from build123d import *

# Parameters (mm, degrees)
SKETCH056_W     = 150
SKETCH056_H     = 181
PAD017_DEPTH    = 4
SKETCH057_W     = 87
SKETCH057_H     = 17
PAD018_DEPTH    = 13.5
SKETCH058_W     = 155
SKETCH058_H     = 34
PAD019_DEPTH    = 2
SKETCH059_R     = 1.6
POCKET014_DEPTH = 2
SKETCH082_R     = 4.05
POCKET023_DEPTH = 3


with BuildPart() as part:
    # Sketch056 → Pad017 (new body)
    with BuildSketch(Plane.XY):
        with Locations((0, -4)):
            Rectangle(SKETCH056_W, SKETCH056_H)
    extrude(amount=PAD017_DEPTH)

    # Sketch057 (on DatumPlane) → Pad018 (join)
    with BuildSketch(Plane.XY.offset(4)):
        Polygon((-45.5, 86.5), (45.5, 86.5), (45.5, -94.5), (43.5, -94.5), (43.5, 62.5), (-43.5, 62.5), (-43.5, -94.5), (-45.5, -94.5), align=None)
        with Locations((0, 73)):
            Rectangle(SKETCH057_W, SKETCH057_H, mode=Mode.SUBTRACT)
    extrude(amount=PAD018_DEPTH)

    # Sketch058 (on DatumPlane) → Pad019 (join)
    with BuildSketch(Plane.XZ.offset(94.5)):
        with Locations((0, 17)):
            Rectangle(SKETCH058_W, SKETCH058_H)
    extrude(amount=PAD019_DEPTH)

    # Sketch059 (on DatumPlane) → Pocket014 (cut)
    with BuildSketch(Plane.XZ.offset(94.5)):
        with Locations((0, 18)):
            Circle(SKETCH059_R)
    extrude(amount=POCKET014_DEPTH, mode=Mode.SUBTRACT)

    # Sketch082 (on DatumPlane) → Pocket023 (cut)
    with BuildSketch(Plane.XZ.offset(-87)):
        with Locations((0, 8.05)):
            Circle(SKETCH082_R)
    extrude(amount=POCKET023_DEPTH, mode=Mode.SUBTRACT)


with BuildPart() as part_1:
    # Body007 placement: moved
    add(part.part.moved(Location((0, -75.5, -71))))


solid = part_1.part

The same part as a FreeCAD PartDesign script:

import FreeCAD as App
import Part
import Sketcher

V = App.Vector


def add_polygon(sketch, points):
    """Adds a closed chain of lines whose ends are joined by coincident constraints."""
    first, n = sketch.GeometryCount, len(points)
    for a, b in zip(points, points[1:] + points[:1]):
        sketch.addGeometry(Part.LineSegment(App.Vector(*a, 0), App.Vector(*b, 0)), False)
    for i in range(n):
        sketch.addConstraint(Sketcher.Constraint("Coincident", first + i, 2, first + (i + 1) % n, 1))

doc = App.newDocument("Part")
body = doc.addObject("PartDesign::Body", "Body")

# Sketch on XY plane
sketch1 = doc.addObject("Sketcher::SketchObject", "Sketch")
body.addObject(sketch1)
sketch1.AttachmentSupport = (doc.XY_Plane, [""])
sketch1.MapMode = "FlatFace"
add_polygon(sketch1, [(-75, 86), (-75, -94), (75, -94), (75, 86)])  # lines 0-3
sketch1.addConstraint(Sketcher.Constraint("Vertical", 0))
sketch1.addConstraint(Sketcher.Constraint("Horizontal", 1))
sketch1.addConstraint(Sketcher.Constraint("Vertical", 2))
sketch1.addConstraint(Sketcher.Constraint("Horizontal", 3))
sketch1.addConstraint(Sketcher.Constraint("DistanceX", 1, 1, 1, 2, 150.0))
sketch1.addConstraint(Sketcher.Constraint("DistanceY", 0, 2, 0, 1, 181.0))
sketch1.addConstraint(Sketcher.Constraint("DistanceX", 0, 2, -1, 1, 75.0))
sketch1.addConstraint(Sketcher.Constraint("DistanceY", 0, 2, -1, 1, 94.5))
pad1 = doc.addObject("PartDesign::Pad", "Pad")
body.addObject(pad1)
pad1.Profile = sketch1
pad1.Length = 4

# Sketch on XY plane
sketch2 = doc.addObject("Sketcher::SketchObject", "Sketch001")
body.addObject(sketch2)
sketch2.AttachmentSupport = (doc.XY_Plane, [""])
sketch2.MapMode = "FlatFace"
sketch2.AttachmentOffset = App.Placement(V(0, 0, 4), App.Rotation())
add_polygon(sketch2, [(45.5, 86.5), (-45.5, 86.5), (-45.5, -94.5), (-43.5, -94.5), (-43.5, 62.5), (43.5, 62.5), (43.5, -94.5), (45.5, -94.5)])  # lines 0-7
add_polygon(sketch2, [(-43.5, 64.5), (-43.5, 81.5), (43.5, 81.5), (43.5, 64.5)])  # lines 8-11
sketch2.addConstraint(Sketcher.Constraint("Horizontal", 0))
sketch2.addConstraint(Sketcher.Constraint("Vertical", 1))
sketch2.addConstraint(Sketcher.Constraint("Horizontal", 2))
sketch2.addConstraint(Sketcher.Constraint("Vertical", 3))
sketch2.addConstraint(Sketcher.Constraint("Horizontal", 4))
sketch2.addConstraint(Sketcher.Constraint("Vertical", 5))
sketch2.addConstraint(Sketcher.Constraint("Horizontal", 6))
sketch2.addConstraint(Sketcher.Constraint("Vertical", 7))
sketch2.addConstraint(Sketcher.Constraint("Vertical", 8))
sketch2.addConstraint(Sketcher.Constraint("Horizontal", 9))
sketch2.addConstraint(Sketcher.Constraint("Vertical", 10))
sketch2.addConstraint(Sketcher.Constraint("Horizontal", 11))
sketch2.addConstraint(Sketcher.Constraint("Symmetric", 2, 2, 5, 2, -2))
sketch2.addConstraint(Sketcher.Constraint("Vertical", 3, 2, 8, 2))
sketch2.addConstraint(Sketcher.Constraint("Vertical", 5, 2, 9, 2))
sketch2.addConstraint(Sketcher.Constraint("Equal", 2, 6))
sketch2.addConstraint(Sketcher.Constraint("DistanceX", 0, 2, 0, 1, 91.0))
sketch2.addConstraint(Sketcher.Constraint("DistanceX", 2, 1, 2, 2, 2.0))
sketch2.addConstraint(Sketcher.Constraint("DistanceY", 1, 2, 1, 1, 181.0))
sketch2.addConstraint(Sketcher.Constraint("DistanceY", 3, 1, 3, 2, 157.0))
sketch2.addConstraint(Sketcher.Constraint("DistanceY", 8, 1, 8, 2, 17.0))
sketch2.addConstraint(Sketcher.Constraint("DistanceY", 8, 2, 0, 2, 5.0))
sketch2.addConstraint(Sketcher.Constraint("DistanceY", -1, 1, 0, 2, 86.5))
pad2 = doc.addObject("PartDesign::Pad", "Pad001")
body.addObject(pad2)
pad2.Profile = sketch2
pad2.Length = 13.5

# Sketch on XZ plane
sketch3 = doc.addObject("Sketcher::SketchObject", "Sketch002")
body.addObject(sketch3)
sketch3.AttachmentSupport = (doc.XZ_Plane, [""])
sketch3.MapMode = "FlatFace"
sketch3.AttachmentOffset = App.Placement(V(0, 0, 94.5), App.Rotation())
add_polygon(sketch3, [(-78, 34), (-78, 0), (78, 0), (78, 34)])  # lines 0-3
sketch3.addConstraint(Sketcher.Constraint("Vertical", 0))
sketch3.addConstraint(Sketcher.Constraint("Horizontal", 1))
sketch3.addConstraint(Sketcher.Constraint("Vertical", 2))
sketch3.addConstraint(Sketcher.Constraint("Horizontal", 3))
sketch3.addConstraint(Sketcher.Constraint("Symmetric", 0, 2, 1, 2, -1, 1))
sketch3.addConstraint(Sketcher.Constraint("DistanceX", 1, 1, 1, 2, 155.0))
sketch3.addConstraint(Sketcher.Constraint("DistanceY", 0, 2, 0, 1, 34.0))
pad3 = doc.addObject("PartDesign::Pad", "Pad002")
body.addObject(pad3)
pad3.Profile = sketch3
pad3.Length = 2

# Sketch on XZ plane
sketch4 = doc.addObject("Sketcher::SketchObject", "Sketch003")
body.addObject(sketch4)
sketch4.AttachmentSupport = (doc.XZ_Plane, [""])
sketch4.MapMode = "FlatFace"
sketch4.AttachmentOffset = App.Placement(V(0, 0, 94.5), App.Rotation())
sketch4.addGeometry(Part.Circle(V(0, 18, 0), V(0, 0, 1), 1.6), False)
sketch4.addConstraint(Sketcher.Constraint("PointOnObject", 0, 3, -2))
sketch4.addConstraint(Sketcher.Constraint("Diameter", 0, 3.2))
sketch4.addConstraint(Sketcher.Constraint("DistanceY", -1, 1, 0, 3, 18.0))
pocket1 = doc.addObject("PartDesign::Pocket", "Pocket")
body.addObject(pocket1)
pocket1.Profile = sketch4
pocket1.Length = 2
pocket1.Reversed = True

# Sketch on XZ plane
sketch5 = doc.addObject("Sketcher::SketchObject", "Sketch004")
body.addObject(sketch5)
sketch5.AttachmentSupport = (doc.XZ_Plane, [""])
sketch5.MapMode = "FlatFace"
sketch5.AttachmentOffset = App.Placement(V(0, 0, -87), App.Rotation())
sketch5.addGeometry(Part.Circle(V(0, 8.1, 0), V(0, 0, 1), 4), False)
sketch5.addConstraint(Sketcher.Constraint("PointOnObject", 0, 3, -2))
sketch5.addConstraint(Sketcher.Constraint("Diameter", 0, 8.1))
sketch5.addConstraint(Sketcher.Constraint("DistanceY", -1, 1, 0, 3, 8.05))
pocket2 = doc.addObject("PartDesign::Pocket", "Pocket001")
body.addObject(pocket2)
pocket2.Profile = sketch5
pocket2.Length = 3
pocket2.Reversed = True
body2 = doc.addObject("PartDesign::Body", "Body001")
doc.recompute()

body.Placement = App.Placement(V(0, -75.5, -71), App.Rotation(V(0, 0, 1), 0))
boolean = doc.addObject("PartDesign::Boolean", "Boolean")
body2.addObject(boolean)
boolean.Type = "Fuse"
boolean.addObjects([body])

doc.recompute()
